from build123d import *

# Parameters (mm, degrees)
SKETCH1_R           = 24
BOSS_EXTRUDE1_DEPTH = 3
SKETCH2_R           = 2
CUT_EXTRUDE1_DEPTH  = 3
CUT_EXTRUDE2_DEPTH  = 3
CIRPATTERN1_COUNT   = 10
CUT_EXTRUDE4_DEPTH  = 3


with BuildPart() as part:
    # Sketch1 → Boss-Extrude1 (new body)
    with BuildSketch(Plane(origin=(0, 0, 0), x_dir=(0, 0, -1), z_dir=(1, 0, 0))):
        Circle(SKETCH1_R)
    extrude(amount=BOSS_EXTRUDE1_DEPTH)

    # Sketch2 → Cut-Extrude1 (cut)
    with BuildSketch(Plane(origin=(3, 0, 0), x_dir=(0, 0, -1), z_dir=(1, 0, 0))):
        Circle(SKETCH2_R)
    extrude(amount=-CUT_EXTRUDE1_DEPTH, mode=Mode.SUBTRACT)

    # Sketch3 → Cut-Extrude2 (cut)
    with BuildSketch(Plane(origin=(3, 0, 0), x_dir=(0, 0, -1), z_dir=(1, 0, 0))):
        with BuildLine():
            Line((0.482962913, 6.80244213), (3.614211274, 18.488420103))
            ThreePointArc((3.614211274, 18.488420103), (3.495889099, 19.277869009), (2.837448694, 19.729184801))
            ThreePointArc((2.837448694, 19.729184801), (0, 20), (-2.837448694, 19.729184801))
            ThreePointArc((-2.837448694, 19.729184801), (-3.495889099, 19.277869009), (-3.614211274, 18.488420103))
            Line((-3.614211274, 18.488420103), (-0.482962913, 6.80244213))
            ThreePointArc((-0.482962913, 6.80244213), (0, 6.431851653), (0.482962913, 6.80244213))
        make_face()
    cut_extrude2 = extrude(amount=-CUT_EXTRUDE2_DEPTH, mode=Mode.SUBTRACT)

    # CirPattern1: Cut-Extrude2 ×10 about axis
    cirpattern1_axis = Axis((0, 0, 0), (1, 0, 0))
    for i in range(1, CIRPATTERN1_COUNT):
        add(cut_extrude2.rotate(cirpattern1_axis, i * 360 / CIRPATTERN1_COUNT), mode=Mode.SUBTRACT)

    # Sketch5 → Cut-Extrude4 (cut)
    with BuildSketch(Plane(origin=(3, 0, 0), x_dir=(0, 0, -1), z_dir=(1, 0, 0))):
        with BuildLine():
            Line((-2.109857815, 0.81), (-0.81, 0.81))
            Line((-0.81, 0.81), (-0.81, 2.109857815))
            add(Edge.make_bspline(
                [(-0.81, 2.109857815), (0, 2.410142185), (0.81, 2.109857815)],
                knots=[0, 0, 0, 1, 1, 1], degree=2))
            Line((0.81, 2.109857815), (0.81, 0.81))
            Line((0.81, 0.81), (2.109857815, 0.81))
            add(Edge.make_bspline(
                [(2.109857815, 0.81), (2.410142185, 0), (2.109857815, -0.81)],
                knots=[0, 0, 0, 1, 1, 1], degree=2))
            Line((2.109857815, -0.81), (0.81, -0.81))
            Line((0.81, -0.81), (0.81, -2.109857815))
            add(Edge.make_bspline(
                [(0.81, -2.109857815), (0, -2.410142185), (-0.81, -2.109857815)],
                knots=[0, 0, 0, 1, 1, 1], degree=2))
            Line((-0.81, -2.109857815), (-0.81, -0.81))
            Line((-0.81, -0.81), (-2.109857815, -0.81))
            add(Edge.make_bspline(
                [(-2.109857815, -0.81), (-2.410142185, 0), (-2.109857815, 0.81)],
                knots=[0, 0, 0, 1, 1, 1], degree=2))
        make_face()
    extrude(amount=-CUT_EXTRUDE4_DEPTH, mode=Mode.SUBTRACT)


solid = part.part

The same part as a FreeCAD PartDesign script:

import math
import FreeCAD as App
import Part
import Sketcher
Q = App.Units.Quantity

doc = App.newDocument("Part")
body = doc.addObject("PartDesign::Body", "Body")

# Sketch on YZ plane
sketch1 = doc.addObject("Sketcher::SketchObject", "Sketch")
body.addObject(sketch1)
sketch1.AttachmentSupport = (doc.YZ_Plane, [""])
sketch1.MapMode = "FlatFace"
sketch1.addGeometry(Part.Circle(App.Vector(0, 0, 0), App.Vector(0, 0, 1), 24), False)
sketch1.addConstraint([
    Sketcher.Constraint("Coincident", 0, 3, -1, 1),
    Sketcher.Constraint("Diameter", 0, Q("48 mm")),
])
pad1 = doc.addObject("PartDesign::Pad", "Pad")
body.addObject(pad1)
pad1.Profile = sketch1
pad1.Length = 3

# Sketch on YZ plane
sketch2 = doc.addObject("Sketcher::SketchObject", "Sketch001")
body.addObject(sketch2)
sketch2.AttachmentSupport = (doc.YZ_Plane, [""])
sketch2.MapMode = "FlatFace"
sketch2.AttachmentOffset = App.Placement(App.Vector(0, 0, 3), App.Rotation())
sketch2.addGeometry(Part.Circle(App.Vector(0, 0, 0), App.Vector(0, 0, 1), 2), False)
sketch2.addConstraint([
    Sketcher.Constraint("Coincident", 0, 3, -1, 1),
    Sketcher.Constraint("Diameter", 0, Q("4 mm")),
])
pocket1 = doc.addObject("PartDesign::Pocket", "Pocket")
body.addObject(pocket1)
pocket1.Profile = sketch2
pocket1.Length = 3

# Sketch on YZ plane
sketch3 = doc.addObject("Sketcher::SketchObject", "Sketch002")
body.addObject(sketch3)
sketch3.AttachmentSupport = (doc.YZ_Plane, [""])
sketch3.MapMode = "FlatFace"
sketch3.AttachmentOffset = App.Placement(App.Vector(0, 0, 3), App.Rotation())
sketch3.addGeometry([
    Part.LineSegment(App.Vector(6.8, -0.5, 0), App.Vector(18.5, -3.6, 0)),  # 0
    Part.ArcOfCircle(Part.Circle(App.Vector(18.7, -2.6, 0), App.Vector(0, 0, 1), 1), math.radians(-105), math.radians(-11)),  # 1
    Part.ArcOfCircle(Part.Circle(App.Vector(5, 0, 0), App.Vector(0, 0, 1), 15), math.radians(-11), math.radians(11)),  # 2
    Part.ArcOfCircle(Part.Circle(App.Vector(18.7, 2.6, 0), App.Vector(0, 0, 1), 1), math.radians(11), math.radians(105)),  # 3
    Part.LineSegment(App.Vector(18.5, 3.6, 0), App.Vector(6.8, 0.5, 0)),  # 4
    Part.ArcOfCircle(Part.Circle(App.Vector(6.9, 0, 0), App.Vector(0, 0, 1), 0.5), math.radians(105), math.radians(255)),  # 5
], False)
sketch3.addConstraint([
    Sketcher.Constraint("Tangent", 0, 2, 1, 1),
    Sketcher.Constraint("Tangent", 1, 2, 2, 1),
    Sketcher.Constraint("Tangent", 2, 2, 3, 1),
    Sketcher.Constraint("Tangent", 3, 2, 4, 1),
    Sketcher.Constraint("Tangent", 4, 2, 5, 1),
    Sketcher.Constraint("Tangent", 5, 2, 0, 1),
    Sketcher.Constraint("Equal", 1, 3),
    Sketcher.Constraint("Symmetric", 1, 3, 3, 3, -1),
    Sketcher.Constraint("PointOnObject", 5, 3, -1),
    Sketcher.Constraint("Radius", 1, Q("1 mm")),
    Sketcher.Constraint("Radius", 2, Q("15 mm")),
    Sketcher.Constraint("Radius", 5, Q("0.5 mm")),
    Sketcher.Constraint("Angle", 0, Q("-15 deg")),
    Sketcher.Constraint("DistanceX", -1, 1, 2, 3, Q("5 mm")),
    Sketcher.Constraint("DistanceX", -1, 1, 1, 3, Q("18.747239 mm")),
])
pocket2 = doc.addObject("PartDesign::Pocket", "Pocket001")
body.addObject(pocket2)
pocket2.Profile = sketch3
pocket2.Length = 3
doc.recompute()

polarpattern = doc.addObject("PartDesign::PolarPattern", "PolarPattern")
body.addObject(polarpattern)
polarpattern.Originals = [pocket2]
polarpattern.Axis = (doc.X_Axis, [""])
polarpattern.Angle = 360
polarpattern.Occurrences = 10
body.Tip = polarpattern

# Sketch on YZ plane
sketch4 = doc.addObject("Sketcher::SketchObject", "Sketch003")
body.addObject(sketch4)
sketch4.AttachmentSupport = (doc.YZ_Plane, [""])
sketch4.MapMode = "FlatFace"
sketch4.AttachmentOffset = App.Placement(App.Vector(0, 0, 3), App.Rotation())
sketch4.addGeometry([
    Part.LineSegment(App.Vector(0.81, 0.81, 0), App.Vector(0.81, 2.109858, 0)),  # 0
    Part.BSplineCurve([App.Vector(-0.81, 2.109858, 0), App.Vector(0, 2.410142, 0), App.Vector(0.81, 2.109858, 0)], [3, 3], [0, 1], False, 2, [1, 1, 1], False),  # 1
    Part.LineSegment(App.Vector(-0.81, 2.109858, 0), App.Vector(-0.81, 0.81, 0)),  # 2
    Part.LineSegment(App.Vector(-0.81, 0.81, 0), App.Vector(-2.109858, 0.81, 0)),  # 3
    Part.BSplineCurve([App.Vector(-2.109858, -0.81, 0), App.Vector(-2.410142, 0, 0), App.Vector(-2.109858, 0.81, 0)], [3, 3], [0, 1], False, 2, [1, 1, 1], False),  # 4
    Part.LineSegment(App.Vector(-2.109858, -0.81, 0), App.Vector(-0.81, -0.81, 0)),  # 5
    Part.LineSegment(App.Vector(-0.81, -0.81, 0), App.Vector(-0.81, -2.109858, 0)),  # 6
    Part.BSplineCurve([App.Vector(0.81, -2.109858, 0), App.Vector(0, -2.410142, 0), App.Vector(-0.81, -2.109858, 0)], [3, 3], [0, 1], False, 2, [1, 1, 1], False),  # 7
    Part.LineSegment(App.Vector(0.81, -2.109858, 0), App.Vector(0.81, -0.81, 0)),  # 8
    Part.LineSegment(App.Vector(0.81, -0.81, 0), App.Vector(2.109858, -0.81, 0)),  # 9
    Part.BSplineCurve([App.Vector(2.109858, 0.81, 0), App.Vector(2.410142, 0, 0), App.Vector(2.109858, -0.81, 0)], [3, 3], [0, 1], False, 2, [1, 1, 1], False),  # 10
    Part.LineSegment(App.Vector(2.109858, 0.81, 0), App.Vector(0.81, 0.81, 0)),  # 11
], False)
sketch4.addConstraint([
    Sketcher.Constraint("Block", 1),
    Sketcher.Constraint("Block", 4),
    Sketcher.Constraint("Block", 7),
    Sketcher.Constraint("Block", 10),
    Sketcher.Constraint("Coincident", 0, 2, 1, 2),
    Sketcher.Constraint("Coincident", 1, 1, 2, 1),
    Sketcher.Constraint("Coincident", 2, 2, 3, 1),
    Sketcher.Constraint("Coincident", 3, 2, 4, 2),
    Sketcher.Constraint("Coincident", 4, 1, 5, 1),
    Sketcher.Constraint("Coincident", 5, 2, 6, 1),
    Sketcher.Constraint("Coincident", 6, 2, 7, 2),
    Sketcher.Constraint("Coincident", 7, 1, 8, 1),
    Sketcher.Constraint("Coincident", 8, 2, 9, 1),
    Sketcher.Constraint("Coincident", 9, 2, 10, 2),
    Sketcher.Constraint("Coincident", 10, 1, 11, 1),
    Sketcher.Constraint("Coincident", 11, 2, 0, 1),
    Sketcher.Constraint("Vertical", 0),
    Sketcher.Constraint("Vertical", 2),
    Sketcher.Constraint("Horizontal", 3),
    Sketcher.Constraint("Horizontal", 5),
    Sketcher.Constraint("Vertical", 6),
    Sketcher.Constraint("Vertical", 8),
    Sketcher.Constraint("Horizontal", 9),
    Sketcher.Constraint("Horizontal", 11),
])
pocket3 = doc.addObject("PartDesign::Pocket", "Pocket002")
body.addObject(pocket3)
pocket3.Profile = sketch4
pocket3.Length = 3

doc.recompute()
